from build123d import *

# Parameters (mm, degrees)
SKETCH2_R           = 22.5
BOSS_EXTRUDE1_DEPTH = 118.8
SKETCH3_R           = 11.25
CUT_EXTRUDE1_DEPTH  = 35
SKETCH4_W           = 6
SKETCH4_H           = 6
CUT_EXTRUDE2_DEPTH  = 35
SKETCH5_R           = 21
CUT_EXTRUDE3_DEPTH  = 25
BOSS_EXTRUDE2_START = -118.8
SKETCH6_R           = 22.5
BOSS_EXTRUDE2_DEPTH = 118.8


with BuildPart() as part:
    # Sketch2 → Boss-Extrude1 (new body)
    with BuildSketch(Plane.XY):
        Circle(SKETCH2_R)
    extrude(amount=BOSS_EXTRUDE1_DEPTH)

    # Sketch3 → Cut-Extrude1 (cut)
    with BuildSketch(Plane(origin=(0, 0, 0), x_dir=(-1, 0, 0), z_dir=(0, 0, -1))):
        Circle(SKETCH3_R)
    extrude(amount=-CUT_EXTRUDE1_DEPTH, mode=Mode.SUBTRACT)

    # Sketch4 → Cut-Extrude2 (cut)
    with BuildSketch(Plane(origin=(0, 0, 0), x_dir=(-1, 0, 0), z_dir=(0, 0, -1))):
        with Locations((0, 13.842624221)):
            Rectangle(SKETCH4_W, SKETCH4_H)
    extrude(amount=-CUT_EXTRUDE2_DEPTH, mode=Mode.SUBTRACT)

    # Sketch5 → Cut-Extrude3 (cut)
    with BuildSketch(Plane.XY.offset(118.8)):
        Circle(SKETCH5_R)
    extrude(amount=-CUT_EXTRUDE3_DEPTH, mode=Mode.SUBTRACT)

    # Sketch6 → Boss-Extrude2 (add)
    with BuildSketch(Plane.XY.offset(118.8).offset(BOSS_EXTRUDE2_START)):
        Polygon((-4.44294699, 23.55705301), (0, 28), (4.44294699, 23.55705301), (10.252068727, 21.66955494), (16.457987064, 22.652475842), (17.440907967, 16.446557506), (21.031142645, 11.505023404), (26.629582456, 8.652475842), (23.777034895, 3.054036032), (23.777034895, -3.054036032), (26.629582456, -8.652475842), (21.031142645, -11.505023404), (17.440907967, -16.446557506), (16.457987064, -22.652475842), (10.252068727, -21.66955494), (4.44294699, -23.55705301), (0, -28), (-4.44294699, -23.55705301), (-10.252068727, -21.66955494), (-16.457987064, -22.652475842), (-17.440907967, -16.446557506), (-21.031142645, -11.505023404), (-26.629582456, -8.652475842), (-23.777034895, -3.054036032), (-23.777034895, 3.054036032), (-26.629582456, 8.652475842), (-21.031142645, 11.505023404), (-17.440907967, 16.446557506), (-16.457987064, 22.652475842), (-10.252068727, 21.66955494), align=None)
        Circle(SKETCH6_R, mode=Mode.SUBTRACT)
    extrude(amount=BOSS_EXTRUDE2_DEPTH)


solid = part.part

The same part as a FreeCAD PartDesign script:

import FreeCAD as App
import Part
import Sketcher

V = App.Vector
Q = App.Units.Quantity

doc = App.newDocument("Part")
body = doc.addObject("PartDesign::Body", "Body")

sketch1 = doc.addObject("Sketcher::SketchObject", "Sketch")
body.addObject(sketch1)
sketch1.AttachmentSupport = (doc.XY_Plane, [""])
sketch1.MapMode = "FlatFace"
sketch1.addGeometry(Part.Circle(V(0, 0, 0), V(0, 0, 1), 22), False)
sketch1.addConstraint([
    Sketcher.Constraint("Coincident", 0, 3, -1, 1),
    Sketcher.Constraint("Diameter", 0, 45.0),
])
pad1 = doc.addObject("PartDesign::Pad", "Pad")
body.addObject(pad1)
pad1.Profile = sketch1
pad1.Length = 118.8

sketch2 = doc.addObject("Sketcher::SketchObject", "Sketch001")
body.addObject(sketch2)
sketch2.AttachmentSupport = (doc.XY_Plane, [""])
sketch2.MapMode = "FlatFace"
sketch2.addGeometry(Part.Circle(V(0, 0, 0), V(0, 0, 1), 11), False)
sketch2.addConstraint([
    Sketcher.Constraint("Coincident", 0, 3, -1, 1),
    Sketcher.Constraint("Diameter", 0, 22.5),
])
pocket1 = doc.addObject("PartDesign::Pocket", "Pocket")
body.addObject(pocket1)
pocket1.Profile = sketch2
pocket1.Length = 35
pocket1.Reversed = True

sketch3 = doc.addObject("Sketcher::SketchObject", "Sketch002")
body.addObject(sketch3)
sketch3.AttachmentSupport = (doc.XY_Plane, [""])
sketch3.MapMode = "FlatFace"
sketch3.addGeometry([
    Part.LineSegment(V(3, 17, 0), V(3, 11, 0)),
    Part.LineSegment(V(3, 11, 0), V(-3, 11, 0)),
    Part.LineSegment(V(-3, 11, 0), V(-3, 17, 0)),
    Part.LineSegment(V(-3, 17, 0), V(3, 17, 0)),
], False)
sketch3.addConstraint([
    Sketcher.Constraint("Coincident", 0, 2, 1, 1),
    Sketcher.Constraint("Coincident", 1, 2, 2, 1),
    Sketcher.Constraint("Coincident", 2, 2, 3, 1),
    Sketcher.Constraint("Coincident", 3, 2, 0, 1),
    Sketcher.Constraint("Vertical", 0),
    Sketcher.Constraint("Horizontal", 1),
    Sketcher.Constraint("Vertical", 2),
    Sketcher.Constraint("Horizontal", 3),
    Sketcher.Constraint("Equal", 3, 0),
    Sketcher.Constraint("DistanceX", 1, 2, 1, 1, 6.0),
    Sketcher.Constraint("DistanceX", -1, 1, 0, 2, 3.0),
    Sketcher.Constraint("DistanceY", -1, 1, 0, 2, 10.842624),
])
pocket2 = doc.addObject("PartDesign::Pocket", "Pocket001")
body.addObject(pocket2)
pocket2.Profile = sketch3
pocket2.Length = 35
pocket2.Reversed = True

sketch4 = doc.addObject("Sketcher::SketchObject", "Sketch003")
body.addObject(sketch4)
sketch4.AttachmentSupport = (doc.XY_Plane, [""])
sketch4.MapMode = "FlatFace"
sketch4.AttachmentOffset = App.Placement(V(0, 0, 118.8), App.Rotation())
sketch4.addGeometry(Part.Circle(V(0, 0, 0), V(0, 0, 1), 21), False)
sketch4.addConstraint([
    Sketcher.Constraint("Coincident", 0, 3, -1, 1),
    Sketcher.Constraint("Diameter", 0, 42.0),
])
pocket3 = doc.addObject("PartDesign::Pocket", "Pocket002")
body.addObject(pocket3)
pocket3.Profile = sketch4
pocket3.Length = 25

sketch5 = doc.addObject("Sketcher::SketchObject", "Sketch004")
body.addObject(sketch5)
sketch5.AttachmentSupport = (doc.XY_Plane, [""])
sketch5.MapMode = "FlatFace"
sketch5.addGeometry([
    Part.LineSegment(V(0, 28, 0), V(-4, 24, 0)),
    Part.LineSegment(V(-4, 24, 0), V(-10, 22, 0)),
    Part.LineSegment(V(-10, 22, 0), V(-16, 23, 0)),
    Part.LineSegment(V(-16, 23, 0), V(-17, 16, 0)),
    Part.LineSegment(V(-17, 16, 0), V(-21, 12, 0)),
    Part.LineSegment(V(-21, 12, 0), V(-27, 9, 0)),
    Part.LineSegment(V(-27, 9, 0), V(-24, 3, 0)),
    Part.LineSegment(V(-24, 3, 0), V(-24, -3, 0)),
    Part.LineSegment(V(-24, -3, 0), V(-27, -9, 0)),
    Part.LineSegment(V(-27, -9, 0), V(-21, -12, 0)),
    Part.LineSegment(V(-21, -12, 0), V(-17, -16, 0)),
    Part.LineSegment(V(-17, -16, 0), V(-16, -23, 0)),
    Part.LineSegment(V(-16, -23, 0), V(-10, -22, 0)),
    Part.LineSegment(V(-10, -22, 0), V(-4, -24, 0)),
    Part.LineSegment(V(-4, -24, 0), V(0, -28, 0)),
    Part.LineSegment(V(0, -28, 0), V(4, -24, 0)),
    Part.LineSegment(V(4, -24, 0), V(10, -22, 0)),
    Part.LineSegment(V(10, -22, 0), V(16, -23, 0)),
    Part.LineSegment(V(16, -23, 0), V(17, -16, 0)),
    Part.LineSegment(V(17, -16, 0), V(21, -12, 0)),
    Part.LineSegment(V(21, -12, 0), V(27, -9, 0)),
    Part.LineSegment(V(27, -9, 0), V(24, -3, 0)),
    Part.LineSegment(V(24, -3, 0), V(24, 3, 0)),
    Part.LineSegment(V(24, 3, 0), V(27, 9, 0)),
    Part.LineSegment(V(27, 9, 0), V(21, 12, 0)),
    Part.LineSegment(V(21, 12, 0), V(17, 16, 0)),
    Part.LineSegment(V(17, 16, 0), V(16, 23, 0)),
    Part.LineSegment(V(16, 23, 0), V(10, 22, 0)),
    Part.LineSegment(V(10, 22, 0), V(4, 24, 0)),
    Part.LineSegment(V(4, 24, 0), V(0, 28, 0)),
    Part.Circle(V(0, 0, 0), V(0, 0, 1), 22),
], False)
sketch5.addConstraint([
    Sketcher.Constraint("Coincident", 0, 2, 1, 1),
    Sketcher.Constraint("Coincident", 1, 2, 2, 1),
    Sketcher.Constraint("Coincident", 2, 2, 3, 1),
    Sketcher.Constraint("Coincident", 3, 2, 4, 1),
    Sketcher.Constraint("Coincident", 4, 2, 5, 1),
    Sketcher.Constraint("Coincident", 5, 2, 6, 1),
    Sketcher.Constraint("Coincident", 6, 2, 7, 1),
    Sketcher.Constraint("Coincident", 7, 2, 8, 1),
    Sketcher.Constraint("Coincident", 8, 2, 9, 1),
    Sketcher.Constraint("Coincident", 9, 2, 10, 1),
    Sketcher.Constraint("Coincident", 10, 2, 11, 1),
    Sketcher.Constraint("Coincident", 11, 2, 12, 1),
    Sketcher.Constraint("Coincident", 12, 2, 13, 1),
    Sketcher.Constraint("Coincident", 13, 2, 14, 1),
    Sketcher.Constraint("Coincident", 14, 2, 15, 1),
    Sketcher.Constraint("Coincident", 15, 2, 16, 1),
    Sketcher.Constraint("Coincident", 16, 2, 17, 1),
    Sketcher.Constraint("Coincident", 17, 2, 18, 1),
    Sketcher.Constraint("Coincident", 18, 2, 19, 1),
    Sketcher.Constraint("Coincident", 19, 2, 20, 1),
    Sketcher.Constraint("Coincident", 20, 2, 21, 1),
    Sketcher.Constraint("Coincident", 21, 2, 22, 1),
    Sketcher.Constraint("Coincident", 22, 2, 23, 1),
    Sketcher.Constraint("Coincident", 23, 2, 24, 1),
    Sketcher.Constraint("Coincident", 24, 2, 25, 1),
    Sketcher.Constraint("Coincident", 25, 2, 26, 1),
    Sketcher.Constraint("Coincident", 26, 2, 27, 1),
    Sketcher.Constraint("Coincident", 27, 2, 28, 1),
    Sketcher.Constraint("Coincident", 28, 2, 29, 1),
    Sketcher.Constraint("Coincident", 29, 2, 0, 1),
    Sketcher.Constraint("Vertical", 7),
    Sketcher.Constraint("Vertical", 22),
    Sketcher.Constraint("Coincident", 30, 3, -1, 1),
    Sketcher.Constraint("Symmetric", 0, 2, 15, 2, -1, 1),
    Sketcher.Constraint("Symmetric", 1, 2, 16, 2, -1, 1),
    Sketcher.Constraint("Symmetric", 2, 2, 17, 2, -1, 1),
    Sketcher.Constraint("Symmetric", 3, 2, 18, 2, -1, 1),
    Sketcher.Constraint("Symmetric", 4, 2, 19, 2, -1, 1),
    Sketcher.Constraint("Symmetric", 5, 2, 20, 2, -1, 1),
    Sketcher.Constraint("Symmetric", 6, 2, 21, 2, -1, 1),
    Sketcher.Constraint("Symmetric", 8, 2, 23, 2, -1, 1),
    Sketcher.Constraint("Symmetric", 9, 2, 24, 2, -1, 1),
    Sketcher.Constraint("Symmetric", 10, 2, 25, 2, -1, 1),
    Sketcher.Constraint("Symmetric", 11, 2, 26, 2, -1, 1),
    Sketcher.Constraint("Symmetric", 12, 2, 27, 2, -1, 1),
    Sketcher.Constraint("Symmetric", 13, 2, 28, 2, -1, 1),
    Sketcher.Constraint("Symmetric", 14, 2, 29, 2, -1, 1),
    Sketcher.Constraint("Symmetric", 13, 2, 15, 2, -2),
    Sketcher.Constraint("Symmetric", 12, 2, 16, 2, -2),
    Sketcher.Constraint("Symmetric", 11, 2, 17, 2, -2),
    Sketcher.Constraint("Symmetric", 10, 2, 18, 2, -2),
    Sketcher.Constraint("Symmetric", 9, 2, 19, 2, -2),
    Sketcher.Constraint("Symmetric", 8, 2, 20, 2, -2),
    Sketcher.Constraint("PointOnObject", 14, 2, -2),
    Sketcher.Constraint("Perpendicular", 2, 3),
    Sketcher.Constraint("Perpendicular", 5, 6),
    Sketcher.Constraint("Perpendicular", 8, 9),
    Sketcher.Constraint("Perpendicular", 0, 14),
    Sketcher.Constraint("Perpendicular", 9, 23),
    Sketcher.Constraint("Equal", 0, 2),
    Sketcher.Constraint("Equal", 2, 3),
    Sketcher.Constraint("Equal", 1, 4),
    Sketcher.Constraint("Equal", 3, 5),
    Sketcher.Constraint("Equal", 5, 6),
    Sketcher.Constraint("Diameter", 30, 45.0),
    Sketcher.Constraint("Angle", 1, Q("-162 deg")),
    Sketcher.Constraint("Angle", 2, Q("171 deg")),
    Sketcher.Constraint("Angle", 4, Q("-126 deg")),
    Sketcher.Constraint("Angle", 5, Q("-153 deg")),
    Sketcher.Constraint("DistanceY", 14, 2, -1, 1, 28.0),
    Sketcher.Constraint("DistanceY", 5, 2, 2, 2, 14.0),
    Sketcher.Constraint("DistanceY", 1, 2, 0, 2, 1.887498),
])
pad2 = doc.addObject("PartDesign::Pad", "Pad001")
body.addObject(pad2)
pad2.Profile = sketch5
pad2.Length = 118.8

doc.recompute()
